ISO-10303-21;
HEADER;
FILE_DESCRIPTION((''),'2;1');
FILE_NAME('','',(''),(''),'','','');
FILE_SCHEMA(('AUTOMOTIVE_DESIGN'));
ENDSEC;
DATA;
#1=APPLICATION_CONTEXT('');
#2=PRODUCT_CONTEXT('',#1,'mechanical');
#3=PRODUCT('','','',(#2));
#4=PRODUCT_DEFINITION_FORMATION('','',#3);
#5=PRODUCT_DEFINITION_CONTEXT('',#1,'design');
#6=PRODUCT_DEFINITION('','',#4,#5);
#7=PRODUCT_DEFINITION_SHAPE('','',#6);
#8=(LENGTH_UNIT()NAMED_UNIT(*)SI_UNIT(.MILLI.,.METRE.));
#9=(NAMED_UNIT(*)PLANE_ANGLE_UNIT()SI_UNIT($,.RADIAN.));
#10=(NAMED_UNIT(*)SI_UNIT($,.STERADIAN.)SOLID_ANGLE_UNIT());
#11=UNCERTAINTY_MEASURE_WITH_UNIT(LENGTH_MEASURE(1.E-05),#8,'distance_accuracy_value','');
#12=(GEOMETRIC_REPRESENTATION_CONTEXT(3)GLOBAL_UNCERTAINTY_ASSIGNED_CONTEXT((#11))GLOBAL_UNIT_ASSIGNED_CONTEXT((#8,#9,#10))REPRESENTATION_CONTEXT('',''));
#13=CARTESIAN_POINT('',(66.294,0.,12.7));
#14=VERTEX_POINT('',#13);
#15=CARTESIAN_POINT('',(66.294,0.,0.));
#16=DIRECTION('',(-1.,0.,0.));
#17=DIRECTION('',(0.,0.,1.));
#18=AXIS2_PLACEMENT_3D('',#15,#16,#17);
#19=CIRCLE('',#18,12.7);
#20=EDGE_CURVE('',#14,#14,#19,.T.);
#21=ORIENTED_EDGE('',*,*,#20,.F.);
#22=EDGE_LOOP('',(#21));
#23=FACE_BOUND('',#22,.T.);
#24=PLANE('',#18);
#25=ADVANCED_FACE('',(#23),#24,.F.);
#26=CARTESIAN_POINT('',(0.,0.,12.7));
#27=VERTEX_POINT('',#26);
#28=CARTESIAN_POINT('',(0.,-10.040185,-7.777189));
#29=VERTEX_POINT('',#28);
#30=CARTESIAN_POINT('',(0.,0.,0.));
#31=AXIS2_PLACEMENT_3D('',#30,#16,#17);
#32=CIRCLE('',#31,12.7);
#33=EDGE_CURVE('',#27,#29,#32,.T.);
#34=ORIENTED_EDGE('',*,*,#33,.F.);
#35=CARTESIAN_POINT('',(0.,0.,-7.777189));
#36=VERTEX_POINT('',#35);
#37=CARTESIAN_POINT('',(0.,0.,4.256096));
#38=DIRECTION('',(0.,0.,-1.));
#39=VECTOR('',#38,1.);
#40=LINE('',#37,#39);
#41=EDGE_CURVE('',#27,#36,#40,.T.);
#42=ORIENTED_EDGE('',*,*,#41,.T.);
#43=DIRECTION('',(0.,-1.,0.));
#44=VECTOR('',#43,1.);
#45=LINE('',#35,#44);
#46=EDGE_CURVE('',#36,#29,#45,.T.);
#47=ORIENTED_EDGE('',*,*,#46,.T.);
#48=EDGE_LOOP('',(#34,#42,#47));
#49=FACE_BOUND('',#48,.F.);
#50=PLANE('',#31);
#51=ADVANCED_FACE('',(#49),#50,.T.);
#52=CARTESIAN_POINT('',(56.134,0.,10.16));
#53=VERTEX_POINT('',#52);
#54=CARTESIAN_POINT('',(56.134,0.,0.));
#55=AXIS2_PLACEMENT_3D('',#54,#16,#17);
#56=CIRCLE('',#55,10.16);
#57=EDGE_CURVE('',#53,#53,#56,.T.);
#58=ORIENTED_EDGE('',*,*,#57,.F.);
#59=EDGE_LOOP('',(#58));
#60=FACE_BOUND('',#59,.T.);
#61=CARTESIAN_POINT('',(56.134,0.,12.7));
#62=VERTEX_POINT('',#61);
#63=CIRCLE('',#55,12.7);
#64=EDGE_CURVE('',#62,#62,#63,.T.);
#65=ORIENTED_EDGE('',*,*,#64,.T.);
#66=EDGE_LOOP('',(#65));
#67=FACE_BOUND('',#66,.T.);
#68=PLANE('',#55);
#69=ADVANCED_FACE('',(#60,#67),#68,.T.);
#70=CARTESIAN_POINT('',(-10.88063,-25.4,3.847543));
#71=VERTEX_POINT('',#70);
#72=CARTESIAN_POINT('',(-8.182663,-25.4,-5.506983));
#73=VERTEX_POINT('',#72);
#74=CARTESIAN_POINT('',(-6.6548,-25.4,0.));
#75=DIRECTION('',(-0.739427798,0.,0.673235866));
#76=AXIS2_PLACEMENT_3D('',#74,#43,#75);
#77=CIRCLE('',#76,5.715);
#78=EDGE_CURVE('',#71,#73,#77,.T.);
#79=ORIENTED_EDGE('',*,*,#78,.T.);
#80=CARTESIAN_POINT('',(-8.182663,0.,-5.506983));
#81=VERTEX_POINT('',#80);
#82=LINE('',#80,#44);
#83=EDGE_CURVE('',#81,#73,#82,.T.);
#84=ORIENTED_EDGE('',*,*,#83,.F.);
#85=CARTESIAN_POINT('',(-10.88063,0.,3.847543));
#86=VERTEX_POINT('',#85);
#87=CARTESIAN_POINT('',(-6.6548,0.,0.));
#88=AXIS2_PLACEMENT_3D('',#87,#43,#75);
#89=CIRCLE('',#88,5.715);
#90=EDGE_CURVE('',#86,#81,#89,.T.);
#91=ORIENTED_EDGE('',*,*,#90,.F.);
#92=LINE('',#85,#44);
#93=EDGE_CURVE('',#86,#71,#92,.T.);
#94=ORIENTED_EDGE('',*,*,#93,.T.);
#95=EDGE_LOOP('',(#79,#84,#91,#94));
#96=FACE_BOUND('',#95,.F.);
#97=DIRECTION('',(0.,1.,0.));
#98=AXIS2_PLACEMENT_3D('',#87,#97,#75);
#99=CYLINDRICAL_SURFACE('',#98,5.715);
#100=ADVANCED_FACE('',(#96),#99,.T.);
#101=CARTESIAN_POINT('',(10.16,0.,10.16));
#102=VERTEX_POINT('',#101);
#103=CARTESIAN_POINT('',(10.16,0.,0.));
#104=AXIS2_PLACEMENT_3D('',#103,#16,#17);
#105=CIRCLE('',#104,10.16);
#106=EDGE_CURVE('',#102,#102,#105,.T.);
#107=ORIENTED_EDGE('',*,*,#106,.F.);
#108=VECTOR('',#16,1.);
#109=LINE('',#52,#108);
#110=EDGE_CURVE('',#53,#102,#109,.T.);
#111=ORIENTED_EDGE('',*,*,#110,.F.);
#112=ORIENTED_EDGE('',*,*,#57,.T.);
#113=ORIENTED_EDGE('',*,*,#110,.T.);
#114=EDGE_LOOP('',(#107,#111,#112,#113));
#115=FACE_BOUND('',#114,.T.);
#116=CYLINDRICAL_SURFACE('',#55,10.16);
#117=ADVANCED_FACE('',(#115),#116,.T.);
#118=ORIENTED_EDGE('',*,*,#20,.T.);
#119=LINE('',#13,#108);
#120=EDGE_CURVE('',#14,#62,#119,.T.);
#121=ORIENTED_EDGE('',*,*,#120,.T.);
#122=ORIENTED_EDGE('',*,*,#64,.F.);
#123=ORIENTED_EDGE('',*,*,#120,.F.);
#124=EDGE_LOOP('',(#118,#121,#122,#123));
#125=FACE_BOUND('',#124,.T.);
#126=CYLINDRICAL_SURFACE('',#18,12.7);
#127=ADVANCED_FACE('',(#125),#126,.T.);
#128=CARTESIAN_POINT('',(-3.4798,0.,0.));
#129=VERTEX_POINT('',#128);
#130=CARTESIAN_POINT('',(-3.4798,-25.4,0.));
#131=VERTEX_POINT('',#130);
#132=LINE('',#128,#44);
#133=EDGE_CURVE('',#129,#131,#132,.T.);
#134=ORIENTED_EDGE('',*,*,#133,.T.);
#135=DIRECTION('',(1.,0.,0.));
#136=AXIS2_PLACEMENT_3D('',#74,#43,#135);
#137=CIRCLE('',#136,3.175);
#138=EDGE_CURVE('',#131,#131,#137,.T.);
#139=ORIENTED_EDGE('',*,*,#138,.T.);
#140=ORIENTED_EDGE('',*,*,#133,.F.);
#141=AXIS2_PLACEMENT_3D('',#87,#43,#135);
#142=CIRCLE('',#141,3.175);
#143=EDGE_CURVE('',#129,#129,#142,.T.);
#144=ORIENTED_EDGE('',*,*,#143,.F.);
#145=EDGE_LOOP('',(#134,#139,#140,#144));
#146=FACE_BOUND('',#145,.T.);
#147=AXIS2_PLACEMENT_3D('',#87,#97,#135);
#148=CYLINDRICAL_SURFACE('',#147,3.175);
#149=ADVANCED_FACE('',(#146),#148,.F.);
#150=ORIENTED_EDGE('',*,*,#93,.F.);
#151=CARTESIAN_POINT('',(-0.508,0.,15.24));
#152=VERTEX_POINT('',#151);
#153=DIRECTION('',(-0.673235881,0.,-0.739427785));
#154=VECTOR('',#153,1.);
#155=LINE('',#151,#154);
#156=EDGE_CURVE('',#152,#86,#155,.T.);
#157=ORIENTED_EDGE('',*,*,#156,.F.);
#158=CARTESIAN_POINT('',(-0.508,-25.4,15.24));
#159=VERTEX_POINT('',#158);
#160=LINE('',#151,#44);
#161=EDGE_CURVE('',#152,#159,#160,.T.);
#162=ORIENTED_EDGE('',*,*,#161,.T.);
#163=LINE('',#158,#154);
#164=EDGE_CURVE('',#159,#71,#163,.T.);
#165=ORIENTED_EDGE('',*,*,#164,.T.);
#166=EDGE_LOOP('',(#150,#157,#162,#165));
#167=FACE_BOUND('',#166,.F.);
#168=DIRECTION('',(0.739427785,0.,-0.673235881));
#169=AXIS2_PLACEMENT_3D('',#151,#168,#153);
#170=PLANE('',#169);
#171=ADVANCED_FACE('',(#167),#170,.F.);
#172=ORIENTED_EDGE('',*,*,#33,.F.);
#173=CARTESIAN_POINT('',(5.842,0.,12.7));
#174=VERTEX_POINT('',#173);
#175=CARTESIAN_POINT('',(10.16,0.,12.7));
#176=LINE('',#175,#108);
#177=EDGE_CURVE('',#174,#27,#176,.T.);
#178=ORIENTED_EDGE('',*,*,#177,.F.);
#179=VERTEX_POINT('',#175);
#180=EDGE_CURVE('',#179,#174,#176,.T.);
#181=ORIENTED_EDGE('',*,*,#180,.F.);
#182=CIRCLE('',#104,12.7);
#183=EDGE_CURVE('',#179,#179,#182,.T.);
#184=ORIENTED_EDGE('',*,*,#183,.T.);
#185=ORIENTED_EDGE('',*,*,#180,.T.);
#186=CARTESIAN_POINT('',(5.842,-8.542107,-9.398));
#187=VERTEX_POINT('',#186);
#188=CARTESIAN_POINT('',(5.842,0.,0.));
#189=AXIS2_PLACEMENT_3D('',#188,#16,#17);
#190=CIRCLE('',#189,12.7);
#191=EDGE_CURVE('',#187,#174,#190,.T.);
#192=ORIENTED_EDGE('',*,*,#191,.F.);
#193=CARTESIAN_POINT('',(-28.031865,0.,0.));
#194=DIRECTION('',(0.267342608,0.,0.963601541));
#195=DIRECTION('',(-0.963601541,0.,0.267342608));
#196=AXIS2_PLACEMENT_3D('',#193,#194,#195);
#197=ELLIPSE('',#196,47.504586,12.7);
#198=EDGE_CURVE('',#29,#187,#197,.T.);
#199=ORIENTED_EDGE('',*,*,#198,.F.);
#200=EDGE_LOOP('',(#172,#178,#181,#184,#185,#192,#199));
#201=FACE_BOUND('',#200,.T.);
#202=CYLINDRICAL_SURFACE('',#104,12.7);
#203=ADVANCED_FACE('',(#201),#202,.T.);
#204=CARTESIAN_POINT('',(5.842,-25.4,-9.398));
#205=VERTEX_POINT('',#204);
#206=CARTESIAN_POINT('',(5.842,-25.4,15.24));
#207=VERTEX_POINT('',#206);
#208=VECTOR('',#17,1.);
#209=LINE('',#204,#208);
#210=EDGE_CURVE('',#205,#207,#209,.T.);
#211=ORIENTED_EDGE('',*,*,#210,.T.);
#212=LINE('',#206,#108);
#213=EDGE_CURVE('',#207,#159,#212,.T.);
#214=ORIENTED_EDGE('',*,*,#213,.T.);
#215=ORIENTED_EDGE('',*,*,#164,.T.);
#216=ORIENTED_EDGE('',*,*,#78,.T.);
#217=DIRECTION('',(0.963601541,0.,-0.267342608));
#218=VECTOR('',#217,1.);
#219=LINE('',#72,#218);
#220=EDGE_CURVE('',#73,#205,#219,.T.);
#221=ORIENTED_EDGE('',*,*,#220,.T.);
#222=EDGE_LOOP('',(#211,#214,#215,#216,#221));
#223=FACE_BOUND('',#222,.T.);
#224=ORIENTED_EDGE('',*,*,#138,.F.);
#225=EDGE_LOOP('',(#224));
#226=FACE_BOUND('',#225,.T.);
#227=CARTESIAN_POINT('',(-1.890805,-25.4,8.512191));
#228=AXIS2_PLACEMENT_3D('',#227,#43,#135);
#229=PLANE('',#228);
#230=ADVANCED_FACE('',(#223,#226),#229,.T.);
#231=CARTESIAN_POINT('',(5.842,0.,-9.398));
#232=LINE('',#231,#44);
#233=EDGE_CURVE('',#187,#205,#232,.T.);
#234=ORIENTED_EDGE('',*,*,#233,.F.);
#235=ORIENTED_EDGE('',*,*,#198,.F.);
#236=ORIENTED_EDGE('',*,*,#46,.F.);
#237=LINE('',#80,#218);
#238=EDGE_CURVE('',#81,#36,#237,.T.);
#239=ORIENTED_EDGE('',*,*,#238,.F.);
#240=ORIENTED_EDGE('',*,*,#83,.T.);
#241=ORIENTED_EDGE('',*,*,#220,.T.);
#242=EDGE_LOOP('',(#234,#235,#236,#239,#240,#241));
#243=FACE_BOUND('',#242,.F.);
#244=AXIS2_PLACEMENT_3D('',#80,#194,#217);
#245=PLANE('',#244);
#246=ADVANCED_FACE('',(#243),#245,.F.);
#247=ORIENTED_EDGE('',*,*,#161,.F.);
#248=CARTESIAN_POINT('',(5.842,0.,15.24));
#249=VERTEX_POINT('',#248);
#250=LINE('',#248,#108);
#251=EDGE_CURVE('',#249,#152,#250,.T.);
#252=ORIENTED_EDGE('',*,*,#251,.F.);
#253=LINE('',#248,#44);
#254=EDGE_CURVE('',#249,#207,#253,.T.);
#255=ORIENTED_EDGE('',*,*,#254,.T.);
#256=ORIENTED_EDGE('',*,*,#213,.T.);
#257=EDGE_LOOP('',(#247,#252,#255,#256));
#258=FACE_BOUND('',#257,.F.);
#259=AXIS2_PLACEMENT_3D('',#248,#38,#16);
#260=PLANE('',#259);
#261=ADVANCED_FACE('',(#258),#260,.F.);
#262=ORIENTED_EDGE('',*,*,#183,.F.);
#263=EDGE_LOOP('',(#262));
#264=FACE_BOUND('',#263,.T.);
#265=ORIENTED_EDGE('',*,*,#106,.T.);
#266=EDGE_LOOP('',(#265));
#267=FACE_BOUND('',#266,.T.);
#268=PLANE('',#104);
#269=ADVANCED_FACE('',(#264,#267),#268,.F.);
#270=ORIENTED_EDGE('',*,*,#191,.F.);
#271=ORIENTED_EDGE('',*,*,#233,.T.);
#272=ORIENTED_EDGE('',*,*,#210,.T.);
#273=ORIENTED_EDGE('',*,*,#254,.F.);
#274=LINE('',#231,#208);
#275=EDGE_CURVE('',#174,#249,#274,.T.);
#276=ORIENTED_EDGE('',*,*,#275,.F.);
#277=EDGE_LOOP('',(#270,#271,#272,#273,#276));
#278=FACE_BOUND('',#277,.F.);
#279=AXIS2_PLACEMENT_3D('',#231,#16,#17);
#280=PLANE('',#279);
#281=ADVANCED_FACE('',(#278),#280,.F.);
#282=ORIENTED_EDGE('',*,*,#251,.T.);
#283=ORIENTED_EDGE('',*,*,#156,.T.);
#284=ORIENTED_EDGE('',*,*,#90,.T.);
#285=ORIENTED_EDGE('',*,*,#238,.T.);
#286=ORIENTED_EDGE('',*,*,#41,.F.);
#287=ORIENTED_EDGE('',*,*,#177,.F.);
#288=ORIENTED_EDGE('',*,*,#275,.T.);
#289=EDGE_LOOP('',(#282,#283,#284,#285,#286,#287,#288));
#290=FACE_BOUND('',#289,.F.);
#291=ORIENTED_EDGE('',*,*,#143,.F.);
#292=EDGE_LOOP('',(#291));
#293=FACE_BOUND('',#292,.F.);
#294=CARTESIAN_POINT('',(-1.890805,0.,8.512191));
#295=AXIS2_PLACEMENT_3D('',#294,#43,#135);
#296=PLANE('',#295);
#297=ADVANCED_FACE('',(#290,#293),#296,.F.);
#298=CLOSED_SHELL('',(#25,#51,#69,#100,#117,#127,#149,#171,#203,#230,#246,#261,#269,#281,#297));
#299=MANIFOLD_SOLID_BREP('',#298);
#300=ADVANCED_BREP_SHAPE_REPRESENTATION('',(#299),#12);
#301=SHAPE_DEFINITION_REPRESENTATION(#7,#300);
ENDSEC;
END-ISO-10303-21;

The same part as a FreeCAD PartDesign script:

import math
import FreeCAD as App
import Part
import Sketcher
Q = App.Units.Quantity

doc = App.newDocument("Part")
params = doc.addObject("Spreadsheet::Sheet", "Params")
for row, (alias, value) in enumerate([
    ("sketch1_width", "0.4 in"),
    ("sketch1_height", "0.5 in"),
    ("sketch1_height2", "0.1 in"),
    ("sketch1_width2", "2.61 in"),
    ("revolution_angle", "360 deg"),
    ("sketch2_diameter", "0.25 in"),
    ("sketch2_radius", "0.225 in"),
    ("sketch2_width", "0.25 in"),
    ("sketch2_height", "0.97 in"),
    ("pad1_length", "1 in"),
], start=1):
    params.set(f"A{row}", alias)
    params.set(f"B{row}", "=" + value)
    params.setAlias(f"B{row}", alias)

body = doc.addObject("PartDesign::Body", "Body")

# Sketch on XZ plane
sketch1 = body.newObject("Sketcher::SketchObject", "Sketch")
sketch1.AttachmentSupport = (doc.getObject("XZ_Plane"), [""])
sketch1.MapMode = "FlatFace"
sketch1.addGeometry(Part.LineSegment(App.Vector(0, 12.7, 0), App.Vector(0, 0, 0)), False)
sketch1.addGeometry(Part.LineSegment(App.Vector(0, 0, 0), App.Vector(66.3, 0, 0)), False)
sketch1.addGeometry(Part.LineSegment(App.Vector(66.3, 0, 0), App.Vector(66.3, 12.7, 0)), False)
sketch1.addGeometry(Part.LineSegment(App.Vector(66.3, 12.7, 0), App.Vector(56.1, 12.7, 0)), False)
sketch1.addGeometry(Part.LineSegment(App.Vector(56.1, 12.7, 0), App.Vector(56.1, 10.2, 0)), False)
sketch1.addGeometry(Part.LineSegment(App.Vector(56.1, 10.2, 0), App.Vector(10.2, 10.2, 0)), False)
sketch1.addGeometry(Part.LineSegment(App.Vector(10.2, 10.2, 0), App.Vector(10.2, 12.7, 0)), False)
sketch1.addGeometry(Part.LineSegment(App.Vector(10.2, 12.7, 0), App.Vector(0, 12.7, 0)), False)
sketch1.addConstraint(Sketcher.Constraint("Coincident", 0, 2, 1, 1))
sketch1.addConstraint(Sketcher.Constraint("Coincident", 1, 2, 2, 1))
sketch1.addConstraint(Sketcher.Constraint("Coincident", 2, 2, 3, 1))
sketch1.addConstraint(Sketcher.Constraint("Coincident", 3, 2, 4, 1))
sketch1.addConstraint(Sketcher.Constraint("Coincident", 4, 2, 5, 1))
sketch1.addConstraint(Sketcher.Constraint("Coincident", 5, 2, 6, 1))
sketch1.addConstraint(Sketcher.Constraint("Coincident", 6, 2, 7, 1))
sketch1.addConstraint(Sketcher.Constraint("Coincident", 7, 2, 0, 1))
sketch1.addConstraint(Sketcher.Constraint("Vertical", 0))
sketch1.addConstraint(Sketcher.Constraint("Horizontal", 1))
sketch1.addConstraint(Sketcher.Constraint("Vertical", 2))
sketch1.addConstraint(Sketcher.Constraint("Horizontal", 3))
sketch1.addConstraint(Sketcher.Constraint("Vertical", 4))
sketch1.addConstraint(Sketcher.Constraint("Horizontal", 5))
sketch1.addConstraint(Sketcher.Constraint("Vertical", 6))
sketch1.addConstraint(Sketcher.Constraint("Horizontal", 7))
sketch1.addConstraint(Sketcher.Constraint("Coincident", 0, 2, -1, 1))
sketch1.addConstraint(Sketcher.Constraint("Horizontal", 3, 2, 6, 2))
sketch1.addConstraint(Sketcher.Constraint("Equal", 3, 7))
sketch1.addConstraint(Sketcher.Constraint("DistanceX", 3, 2, 3, 1, Q("0.4 in")))
sketch1.addConstraint(Sketcher.Constraint("DistanceY", 0, 2, 0, 1, Q("0.5 in")))
sketch1.addConstraint(Sketcher.Constraint("DistanceY", 4, 2, 4, 1, Q("0.1 in")))
sketch1.addConstraint(Sketcher.Constraint("DistanceX", 1, 1, 1, 2, Q("2.61 in")))
sketch1.setExpression("Constraints[19]", "Params.sketch1_width")
sketch1.setExpression("Constraints[20]", "Params.sketch1_height")
sketch1.setExpression("Constraints[21]", "Params.sketch1_height2")
sketch1.setExpression("Constraints[22]", "Params.sketch1_width2")
revolution = body.newObject("PartDesign::Revolution", "Revolution")
revolution.Profile = sketch1
revolution.ReferenceAxis = (sketch1, ["H_Axis"])
revolution.setExpression("Angle", "Params.revolution_angle")

# Sketch on XZ plane
sketch2 = body.newObject("Sketcher::SketchObject", "Sketch001")
sketch2.AttachmentSupport = (doc.getObject("XZ_Plane"), [""])
sketch2.MapMode = "FlatFace"
sketch2.addGeometry(Part.LineSegment(App.Vector(5.8, 15.2, 0), App.Vector(-0.5, 15.2, 0)), False)
sketch2.addGeometry(Part.LineSegment(App.Vector(-0.5, 15.2, 0), App.Vector(-10.9, 3.8, 0)), False)
sketch2.addGeometry(Part.ArcOfCircle(Part.Circle(App.Vector(-6.7, 0, 0), App.Vector(0, 0, 1), 5.7), math.radians(138), math.radians(254)), False)
sketch2.addGeometry(Part.LineSegment(App.Vector(-8.2, -5.5, 0), App.Vector(5.8, -9.4, 0)), False)
sketch2.addGeometry(Part.LineSegment(App.Vector(5.8, -9.4, 0), App.Vector(5.8, 15.2, 0)), False)
sketch2.addGeometry(Part.Circle(App.Vector(-6.7, 0, 0), App.Vector(0, 0, 1), 3.2), False)
sketch2.addConstraint(Sketcher.Constraint("Coincident", 0, 2, 1, 1))
sketch2.addConstraint(Sketcher.Constraint("Tangent", 1, 2, 2, 1))
sketch2.addConstraint(Sketcher.Constraint("Tangent", 2, 2, 3, 1))
sketch2.addConstraint(Sketcher.Constraint("Coincident", 3, 2, 4, 1))
sketch2.addConstraint(Sketcher.Constraint("Coincident", 4, 2, 0, 1))
sketch2.addConstraint(Sketcher.Constraint("Horizontal", 0))
sketch2.addConstraint(Sketcher.Constraint("Vertical", 4))
sketch2.addConstraint(Sketcher.Constraint("Coincident", 5, 3, 2, 3))
sketch2.addConstraint(Sketcher.Constraint("PointOnObject", 2, 3, -1))
sketch2.addConstraint(Sketcher.Constraint("Diameter", 5, Q("0.25 in")))
sketch2.addConstraint(Sketcher.Constraint("Radius", 2, Q("0.225 in")))
sketch2.addConstraint(Sketcher.Constraint("DistanceX", 0, 2, 0, 1, Q("0.25 in")))
sketch2.addConstraint(Sketcher.Constraint("DistanceY", 4, 1, 4, 2, Q("0.97 in")))
sketch2.addConstraint(Sketcher.Constraint("DistanceY", -1, 1, 0, 2, Q("0.6 in")))
sketch2.addConstraint(Sketcher.Constraint("DistanceX", 0, 2, -1, 1, Q("0.02 in")))
sketch2.addConstraint(Sketcher.Constraint("DistanceX", 2, 3, -1, 1, Q("0.262 in")))
sketch2.setExpression("Constraints[9]", "Params.sketch2_diameter")
sketch2.setExpression("Constraints[10]", "Params.sketch2_radius")
sketch2.setExpression("Constraints[11]", "Params.sketch2_width")
sketch2.setExpression("Constraints[12]", "Params.sketch2_height")
pad1 = body.newObject("PartDesign::Pad", "Pad")
pad1.Profile = sketch2
pad1.setExpression("Length", "Params.pad1_length")

doc.recompute()
